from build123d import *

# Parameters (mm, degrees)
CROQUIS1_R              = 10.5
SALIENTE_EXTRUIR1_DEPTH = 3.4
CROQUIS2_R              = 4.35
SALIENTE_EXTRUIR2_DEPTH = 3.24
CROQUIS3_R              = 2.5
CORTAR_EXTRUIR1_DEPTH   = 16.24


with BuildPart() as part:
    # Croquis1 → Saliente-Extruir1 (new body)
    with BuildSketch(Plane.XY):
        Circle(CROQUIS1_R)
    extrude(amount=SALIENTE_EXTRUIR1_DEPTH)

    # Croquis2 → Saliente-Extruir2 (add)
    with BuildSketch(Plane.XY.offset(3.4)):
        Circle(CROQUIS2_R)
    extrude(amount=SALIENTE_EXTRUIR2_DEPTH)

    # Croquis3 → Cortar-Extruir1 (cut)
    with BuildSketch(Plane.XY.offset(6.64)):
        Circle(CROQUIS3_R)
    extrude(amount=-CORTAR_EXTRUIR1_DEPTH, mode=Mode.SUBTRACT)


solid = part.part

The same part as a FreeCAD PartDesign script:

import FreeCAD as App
import Part
import Sketcher
from FreeCAD import Vector
Q = App.Units.Quantity

doc = App.newDocument("Part")
params = doc.addObject("Spreadsheet::Sheet", "Params")
for row, (alias, value) in enumerate([
    ("sketch1_diameter", "21 mm"),
    ("pad1_length", "3.4 mm"),
    ("sketch2_diameter", "8.7 mm"),
    ("pad2_length", "3.24 mm"),
    ("sketch3_diameter", "5 mm"),
    ("pocket1_length", "16.24 mm"),
], start=1):
    params.set(f"A{row}", alias)
    params.set(f"B{row}", "=" + value)
    params.setAlias(f"B{row}", alias)

body = doc.addObject("PartDesign::Body", "Body")

sketch1 = doc.addObject("Sketcher::SketchObject", "Sketch")
body.addObject(sketch1)
sketch1.AttachmentSupport = (doc.XY_Plane, [""])
sketch1.MapMode = "FlatFace"
sketch1.addGeometry(Part.Circle(Vector(0, 0, 0), Vector(0, 0, 1), 10.5), False)
sketch1.addConstraint(Sketcher.Constraint("Coincident", 0, 3, -1, 1))
sketch1.addConstraint(Sketcher.Constraint("Diameter", 0, Q("21 mm")))
sketch1.setExpression("Constraints[1]", "Params.sketch1_diameter")
pad1 = doc.addObject("PartDesign::Pad", "Pad")
body.addObject(pad1)
pad1.Profile = sketch1
pad1.setExpression("Length", "Params.pad1_length")

sketch2 = doc.addObject("Sketcher::SketchObject", "Sketch001")
body.addObject(sketch2)
sketch2.AttachmentSupport = (doc.XY_Plane, [""])
sketch2.MapMode = "FlatFace"
sketch2.AttachmentOffset = App.Placement(Vector(0, 0, 3.4), App.Rotation())
sketch2.addGeometry(Part.Circle(Vector(0, 0, 0), Vector(0, 0, 1), 4.35), False)
sketch2.addConstraint(Sketcher.Constraint("Coincident", 0, 3, -1, 1))
sketch2.addConstraint(Sketcher.Constraint("Diameter", 0, Q("8.7 mm")))
sketch2.setExpression("Constraints[1]", "Params.sketch2_diameter")
pad2 = doc.addObject("PartDesign::Pad", "Pad001")
body.addObject(pad2)
pad2.Profile = sketch2
pad2.setExpression("Length", "Params.pad2_length")

sketch3 = doc.addObject("Sketcher::SketchObject", "Sketch002")
body.addObject(sketch3)
sketch3.AttachmentSupport = (doc.XY_Plane, [""])
sketch3.MapMode = "FlatFace"
sketch3.AttachmentOffset = App.Placement(Vector(0, 0, 6.64), App.Rotation())
sketch3.addGeometry(Part.Circle(Vector(0, 0, 0), Vector(0, 0, 1), 2.5), False)
sketch3.addConstraint(Sketcher.Constraint("Coincident", 0, 3, -1, 1))
sketch3.addConstraint(Sketcher.Constraint("Diameter", 0, Q("5 mm")))
sketch3.setExpression("Constraints[1]", "Params.sketch3_diameter")
pocket1 = doc.addObject("PartDesign::Pocket", "Pocket")
body.addObject(pocket1)
pocket1.Profile = sketch3
pocket1.setExpression("Length", "Params.pocket1_length")

doc.recompute()
